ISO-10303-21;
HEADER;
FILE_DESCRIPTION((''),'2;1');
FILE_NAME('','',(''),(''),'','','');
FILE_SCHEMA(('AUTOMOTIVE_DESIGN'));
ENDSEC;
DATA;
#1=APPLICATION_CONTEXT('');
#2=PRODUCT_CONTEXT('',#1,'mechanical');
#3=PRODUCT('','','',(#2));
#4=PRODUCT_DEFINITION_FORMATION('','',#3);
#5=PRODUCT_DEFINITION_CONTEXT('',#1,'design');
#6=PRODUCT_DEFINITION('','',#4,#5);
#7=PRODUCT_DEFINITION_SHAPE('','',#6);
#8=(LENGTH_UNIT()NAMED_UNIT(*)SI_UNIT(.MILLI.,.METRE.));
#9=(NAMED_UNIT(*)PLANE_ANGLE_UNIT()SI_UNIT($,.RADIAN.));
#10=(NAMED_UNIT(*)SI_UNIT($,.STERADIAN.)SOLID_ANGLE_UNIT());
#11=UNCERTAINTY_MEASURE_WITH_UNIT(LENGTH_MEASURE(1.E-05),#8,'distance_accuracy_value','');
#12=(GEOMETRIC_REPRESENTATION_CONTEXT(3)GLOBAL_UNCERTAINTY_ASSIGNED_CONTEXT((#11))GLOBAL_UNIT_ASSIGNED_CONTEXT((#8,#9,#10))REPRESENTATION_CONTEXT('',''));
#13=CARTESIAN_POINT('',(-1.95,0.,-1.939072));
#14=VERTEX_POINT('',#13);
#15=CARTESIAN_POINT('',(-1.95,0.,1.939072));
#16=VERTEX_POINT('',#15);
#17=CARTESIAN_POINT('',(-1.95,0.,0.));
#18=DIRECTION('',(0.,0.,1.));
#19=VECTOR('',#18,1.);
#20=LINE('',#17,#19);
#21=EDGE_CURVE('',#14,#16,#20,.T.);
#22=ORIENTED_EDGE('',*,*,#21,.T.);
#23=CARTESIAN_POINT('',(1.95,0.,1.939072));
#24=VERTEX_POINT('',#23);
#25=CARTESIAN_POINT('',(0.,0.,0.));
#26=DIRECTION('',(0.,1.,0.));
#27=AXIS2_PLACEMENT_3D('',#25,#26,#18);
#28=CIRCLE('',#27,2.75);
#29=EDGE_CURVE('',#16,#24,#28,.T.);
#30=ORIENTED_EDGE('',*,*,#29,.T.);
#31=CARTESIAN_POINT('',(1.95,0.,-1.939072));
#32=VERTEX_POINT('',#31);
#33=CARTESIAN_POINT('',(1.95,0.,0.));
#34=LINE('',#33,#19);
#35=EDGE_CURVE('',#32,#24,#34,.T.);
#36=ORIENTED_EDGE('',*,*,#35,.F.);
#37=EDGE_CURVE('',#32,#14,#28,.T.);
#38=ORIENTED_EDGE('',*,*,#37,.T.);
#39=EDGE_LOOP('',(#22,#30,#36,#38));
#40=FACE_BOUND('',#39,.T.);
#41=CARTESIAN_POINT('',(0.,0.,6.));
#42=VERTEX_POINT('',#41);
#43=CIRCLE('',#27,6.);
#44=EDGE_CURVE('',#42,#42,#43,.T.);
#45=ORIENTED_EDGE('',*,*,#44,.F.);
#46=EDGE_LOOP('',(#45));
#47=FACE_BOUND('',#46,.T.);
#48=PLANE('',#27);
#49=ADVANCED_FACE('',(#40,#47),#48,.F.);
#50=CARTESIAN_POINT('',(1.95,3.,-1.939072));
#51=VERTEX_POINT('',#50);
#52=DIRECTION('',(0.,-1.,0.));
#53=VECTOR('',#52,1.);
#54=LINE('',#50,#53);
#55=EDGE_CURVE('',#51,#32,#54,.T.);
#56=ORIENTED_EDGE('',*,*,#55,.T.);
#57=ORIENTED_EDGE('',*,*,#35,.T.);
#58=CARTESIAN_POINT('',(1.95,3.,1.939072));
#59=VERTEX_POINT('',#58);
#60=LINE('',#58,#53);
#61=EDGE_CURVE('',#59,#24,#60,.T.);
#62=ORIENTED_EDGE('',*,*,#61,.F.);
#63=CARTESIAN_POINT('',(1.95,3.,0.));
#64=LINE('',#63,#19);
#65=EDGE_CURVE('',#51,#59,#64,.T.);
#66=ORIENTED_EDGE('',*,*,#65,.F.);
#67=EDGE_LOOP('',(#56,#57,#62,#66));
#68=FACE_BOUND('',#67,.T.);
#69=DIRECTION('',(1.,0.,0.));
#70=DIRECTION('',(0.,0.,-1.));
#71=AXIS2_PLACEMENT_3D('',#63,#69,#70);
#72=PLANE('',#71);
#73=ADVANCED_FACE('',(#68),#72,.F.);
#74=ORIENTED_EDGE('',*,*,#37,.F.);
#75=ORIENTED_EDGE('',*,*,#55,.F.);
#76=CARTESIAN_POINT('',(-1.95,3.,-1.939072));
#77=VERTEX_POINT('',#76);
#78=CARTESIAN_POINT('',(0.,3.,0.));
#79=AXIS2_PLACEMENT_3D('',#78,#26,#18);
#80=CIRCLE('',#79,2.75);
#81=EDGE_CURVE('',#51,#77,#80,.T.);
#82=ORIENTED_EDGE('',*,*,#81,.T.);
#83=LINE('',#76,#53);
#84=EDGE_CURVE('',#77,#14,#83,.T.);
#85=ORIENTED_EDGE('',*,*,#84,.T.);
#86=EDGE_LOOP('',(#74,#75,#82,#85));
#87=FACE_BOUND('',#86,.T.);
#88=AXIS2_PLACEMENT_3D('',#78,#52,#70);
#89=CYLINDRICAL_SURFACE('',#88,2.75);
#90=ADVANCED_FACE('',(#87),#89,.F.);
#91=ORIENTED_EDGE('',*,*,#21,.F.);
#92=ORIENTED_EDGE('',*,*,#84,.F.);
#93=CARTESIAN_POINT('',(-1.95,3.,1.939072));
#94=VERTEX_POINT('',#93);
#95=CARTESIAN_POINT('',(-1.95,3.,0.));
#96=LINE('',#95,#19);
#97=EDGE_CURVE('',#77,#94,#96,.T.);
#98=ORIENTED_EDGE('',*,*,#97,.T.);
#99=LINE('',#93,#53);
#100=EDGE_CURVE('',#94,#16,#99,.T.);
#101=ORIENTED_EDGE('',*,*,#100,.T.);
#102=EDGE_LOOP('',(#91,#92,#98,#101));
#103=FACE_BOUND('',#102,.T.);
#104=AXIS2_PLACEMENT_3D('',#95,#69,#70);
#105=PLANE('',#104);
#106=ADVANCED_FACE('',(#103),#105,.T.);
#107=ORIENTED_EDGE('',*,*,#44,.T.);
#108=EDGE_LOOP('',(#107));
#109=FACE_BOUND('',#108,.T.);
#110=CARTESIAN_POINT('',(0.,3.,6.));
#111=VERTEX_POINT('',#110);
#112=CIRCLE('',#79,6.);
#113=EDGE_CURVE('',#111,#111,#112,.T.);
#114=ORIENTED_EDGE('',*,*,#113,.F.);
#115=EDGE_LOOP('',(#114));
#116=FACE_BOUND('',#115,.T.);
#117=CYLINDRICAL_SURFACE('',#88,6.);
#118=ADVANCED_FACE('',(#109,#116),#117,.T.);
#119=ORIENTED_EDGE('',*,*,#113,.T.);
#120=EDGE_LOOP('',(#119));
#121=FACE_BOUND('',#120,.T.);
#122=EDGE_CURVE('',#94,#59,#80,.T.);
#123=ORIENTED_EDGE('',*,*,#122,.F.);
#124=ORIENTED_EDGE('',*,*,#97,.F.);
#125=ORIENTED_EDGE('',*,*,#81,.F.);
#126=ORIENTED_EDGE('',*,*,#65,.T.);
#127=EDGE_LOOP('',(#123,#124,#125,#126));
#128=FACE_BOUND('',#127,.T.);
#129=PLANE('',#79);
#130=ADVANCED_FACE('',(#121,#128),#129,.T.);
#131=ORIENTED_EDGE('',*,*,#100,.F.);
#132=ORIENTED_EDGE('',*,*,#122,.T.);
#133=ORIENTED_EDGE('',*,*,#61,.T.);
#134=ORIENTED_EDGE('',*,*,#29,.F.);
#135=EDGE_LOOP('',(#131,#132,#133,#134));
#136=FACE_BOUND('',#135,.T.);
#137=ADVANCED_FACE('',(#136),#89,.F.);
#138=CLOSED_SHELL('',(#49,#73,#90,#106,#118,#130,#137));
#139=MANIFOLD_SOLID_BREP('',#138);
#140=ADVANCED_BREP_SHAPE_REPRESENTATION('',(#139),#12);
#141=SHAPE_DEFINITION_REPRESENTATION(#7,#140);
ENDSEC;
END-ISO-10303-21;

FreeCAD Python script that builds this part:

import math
import FreeCAD as App
import Part
import Sketcher
from FreeCAD import Vector
Q = App.Units.Quantity

doc = App.newDocument("Part")
body = doc.addObject("PartDesign::Body", "Body")

sketch1 = body.newObject("Sketcher::SketchObject", "Sketch")
sketch1.AttachmentSupport = (doc.getObject("XZ_Plane"), [""])
sketch1.MapMode = "FlatFace"
sketch1.addGeometry(Part.ArcOfCircle(Part.Circle(Vector(0, 0, 0), Vector(0, 0, 1), 6), math.radians(-71), math.radians(0)), False)
sketch1.addGeometry(Part.ArcOfCircle(Part.Circle(Vector(0, 0, 0), Vector(0, 0, 1), 6), math.radians(-109), math.radians(-71)), False)
sketch1.addGeometry(Part.ArcOfCircle(Part.Circle(Vector(0, 0, 0), Vector(0, 0, 1), 6), math.radians(109), math.radians(251)), False)
sketch1.addGeometry(Part.ArcOfCircle(Part.Circle(Vector(0, 0, 0), Vector(0, 0, 1), 6), math.radians(71), math.radians(109)), False)
sketch1.addGeometry(Part.ArcOfCircle(Part.Circle(Vector(0, 0, 0), Vector(0, 0, 1), 6), math.radians(0), math.radians(71)), False)
sketch1.addGeometry(Part.LineSegment(Vector(1.9, -1.9, 0), Vector(1.9, 1.9, 0)), False)
sketch1.addGeometry(Part.ArcOfCircle(Part.Circle(Vector(0, 0, 0), Vector(0, 0, 1), 2.8), math.radians(45), math.radians(135)), False)
sketch1.addGeometry(Part.LineSegment(Vector(-1.9, 1.9, 0), Vector(-1.9, -1.9, 0)), False)
sketch1.addGeometry(Part.ArcOfCircle(Part.Circle(Vector(0, 0, 0), Vector(0, 0, 1), 2.8), math.radians(-135), math.radians(-45)), False)
sketch1.addConstraint(Sketcher.Constraint("Tangent", 0, 1, 1, 2))
sketch1.addConstraint(Sketcher.Constraint("Tangent", 1, 1, 2, 2))
sketch1.addConstraint(Sketcher.Constraint("Tangent", 2, 1, 3, 2))
sketch1.addConstraint(Sketcher.Constraint("Tangent", 3, 1, 4, 2))
sketch1.addConstraint(Sketcher.Constraint("Tangent", 4, 1, 0, 2))
sketch1.addConstraint(Sketcher.Constraint("Coincident", 5, 2, 6, 1))
sketch1.addConstraint(Sketcher.Constraint("Coincident", 6, 2, 7, 1))
sketch1.addConstraint(Sketcher.Constraint("Coincident", 7, 2, 8, 1))
sketch1.addConstraint(Sketcher.Constraint("Coincident", 8, 2, 5, 1))
sketch1.addConstraint(Sketcher.Constraint("Vertical", 5))
sketch1.addConstraint(Sketcher.Constraint("Vertical", 7))
sketch1.addConstraint(Sketcher.Constraint("Coincident", 0, 3, -1, 1))
sketch1.addConstraint(Sketcher.Constraint("Coincident", 2, 3, -1, 1))
sketch1.addConstraint(Sketcher.Constraint("Coincident", 6, 3, -1, 1))
sketch1.addConstraint(Sketcher.Constraint("Coincident", 8, 3, -1, 1))
sketch1.addConstraint(Sketcher.Constraint("Equal", 6, 8))
sketch1.addConstraint(Sketcher.Constraint("PointOnObject", 4, 1, -1))
sketch1.addConstraint(Sketcher.Constraint("Horizontal", 0, 1, 1, 1))
sketch1.addConstraint(Sketcher.Constraint("Horizontal", 2, 1, 3, 1))
sketch1.addConstraint(Sketcher.Constraint("Horizontal", 5, 2, 6, 2))
sketch1.addConstraint(Sketcher.Constraint("Vertical", 1, 1, 2, 1))
sketch1.addConstraint(Sketcher.Constraint("Vertical", 3, 1, 5, 2))
sketch1.addConstraint(Sketcher.Constraint("Radius", 0, Q("6 mm")))
sketch1.addConstraint(Sketcher.Constraint("Radius", 6, Q("2.75 mm")))
sketch1.addConstraint(Sketcher.Constraint("DistanceX", 1, 1, 0, 1, Q("3.9 mm")))
pad1 = body.newObject("PartDesign::Pad", "Pad")
pad1.Profile = sketch1
pad1.Length = 3
pad1.Reversed = True

doc.recompute()
